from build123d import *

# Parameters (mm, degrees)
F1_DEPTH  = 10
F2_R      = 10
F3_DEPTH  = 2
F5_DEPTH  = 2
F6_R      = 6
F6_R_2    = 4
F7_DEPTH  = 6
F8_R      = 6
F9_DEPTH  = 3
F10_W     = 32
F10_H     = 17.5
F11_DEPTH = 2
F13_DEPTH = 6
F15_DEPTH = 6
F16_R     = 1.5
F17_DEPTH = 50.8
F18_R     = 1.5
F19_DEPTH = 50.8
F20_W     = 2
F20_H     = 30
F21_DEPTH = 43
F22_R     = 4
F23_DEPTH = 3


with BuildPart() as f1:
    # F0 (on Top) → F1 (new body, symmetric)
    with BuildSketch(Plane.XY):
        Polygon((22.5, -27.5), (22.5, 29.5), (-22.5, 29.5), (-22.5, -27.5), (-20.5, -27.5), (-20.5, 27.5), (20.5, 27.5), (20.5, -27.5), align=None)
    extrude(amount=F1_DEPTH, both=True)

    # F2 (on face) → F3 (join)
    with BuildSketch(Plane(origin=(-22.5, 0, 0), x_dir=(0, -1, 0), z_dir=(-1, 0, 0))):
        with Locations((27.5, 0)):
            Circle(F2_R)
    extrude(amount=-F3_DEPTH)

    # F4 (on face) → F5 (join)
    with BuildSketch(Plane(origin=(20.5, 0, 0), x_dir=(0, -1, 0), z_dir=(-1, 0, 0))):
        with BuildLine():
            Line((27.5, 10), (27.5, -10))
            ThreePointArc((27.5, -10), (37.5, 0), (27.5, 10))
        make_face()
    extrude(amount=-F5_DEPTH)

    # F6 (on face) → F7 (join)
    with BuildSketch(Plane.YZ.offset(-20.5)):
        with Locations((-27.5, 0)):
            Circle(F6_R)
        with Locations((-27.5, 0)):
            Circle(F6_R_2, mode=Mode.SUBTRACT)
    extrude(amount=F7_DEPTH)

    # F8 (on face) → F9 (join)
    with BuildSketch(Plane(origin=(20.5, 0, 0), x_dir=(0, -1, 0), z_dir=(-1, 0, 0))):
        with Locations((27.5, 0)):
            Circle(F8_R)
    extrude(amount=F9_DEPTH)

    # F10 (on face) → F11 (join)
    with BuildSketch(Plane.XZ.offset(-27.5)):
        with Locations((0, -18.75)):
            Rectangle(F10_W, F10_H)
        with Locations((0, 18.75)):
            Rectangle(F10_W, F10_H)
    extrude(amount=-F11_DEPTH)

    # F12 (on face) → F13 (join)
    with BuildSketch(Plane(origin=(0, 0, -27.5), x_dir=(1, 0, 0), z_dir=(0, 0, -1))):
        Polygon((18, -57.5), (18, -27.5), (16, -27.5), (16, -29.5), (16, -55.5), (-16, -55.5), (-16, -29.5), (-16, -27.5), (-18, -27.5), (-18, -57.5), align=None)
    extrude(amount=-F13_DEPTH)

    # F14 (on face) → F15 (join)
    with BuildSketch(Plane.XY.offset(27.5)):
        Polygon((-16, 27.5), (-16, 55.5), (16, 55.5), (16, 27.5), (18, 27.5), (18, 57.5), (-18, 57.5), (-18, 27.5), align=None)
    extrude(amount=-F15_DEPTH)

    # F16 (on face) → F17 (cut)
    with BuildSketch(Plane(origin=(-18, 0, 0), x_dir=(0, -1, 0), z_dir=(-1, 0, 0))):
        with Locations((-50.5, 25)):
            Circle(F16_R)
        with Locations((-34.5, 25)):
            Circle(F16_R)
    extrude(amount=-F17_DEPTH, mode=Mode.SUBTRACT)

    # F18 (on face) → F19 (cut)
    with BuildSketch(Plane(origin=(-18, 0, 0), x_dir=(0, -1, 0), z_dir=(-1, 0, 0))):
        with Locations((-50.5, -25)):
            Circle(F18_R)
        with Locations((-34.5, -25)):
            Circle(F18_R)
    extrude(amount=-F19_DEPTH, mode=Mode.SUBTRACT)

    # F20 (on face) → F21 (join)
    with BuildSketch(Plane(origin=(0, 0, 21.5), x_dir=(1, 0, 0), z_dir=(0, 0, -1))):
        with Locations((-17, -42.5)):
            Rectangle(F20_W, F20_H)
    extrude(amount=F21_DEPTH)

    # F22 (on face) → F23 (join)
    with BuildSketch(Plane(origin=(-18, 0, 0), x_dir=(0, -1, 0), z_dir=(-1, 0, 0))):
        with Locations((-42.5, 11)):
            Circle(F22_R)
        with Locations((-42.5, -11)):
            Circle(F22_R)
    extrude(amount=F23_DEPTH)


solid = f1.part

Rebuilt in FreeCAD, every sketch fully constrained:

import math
import FreeCAD as App
import Part
import Sketcher
from FreeCAD import Vector
Q = App.Units.Quantity

doc = App.newDocument("Part")
params = doc.addObject("Spreadsheet::Sheet", "Params")
for row, (alias, value) in enumerate([
    ("sketch1_width", "45 mm"),
    ("sketch1_width2", "2 mm"),
    ("sketch1_height", "57 mm"),
    ("sketch1_height2", "55 mm"),
    ("pad1_length", "20 mm"),
    ("sketch2_diameter", "20 mm"),
    ("pad2_length", "2 mm"),
    ("sketch3_radius", "10 mm"),
    ("pad3_length", "2 mm"),
    ("sketch4_diameter", "12 mm"),
    ("sketch4_diameter2", "8 mm"),
    ("pad4_length", "6 mm"),
    ("sketch5_diameter", "12 mm"),
    ("pad5_length", "3 mm"),
    ("sketch6_width", "32 mm"),
    ("sketch6_height", "17.5 mm"),
    ("pad6_length", "2 mm"),
    ("sketch7_width", "2 mm"),
    ("sketch7_width2", "32 mm"),
    ("sketch7_height", "30 mm"),
    ("sketch7_height2", "28 mm"),
    ("pad7_length", "6 mm"),
    ("sketch8_width", "32 mm"),
    ("sketch8_width2", "2 mm"),
    ("sketch8_height", "28 mm"),
    ("sketch8_height2", "30 mm"),
    ("pad8_length", "6 mm"),
    ("sketch9_diameter", "3 mm"),
    ("pocket1_length", "50.8 mm"),
    ("sketch10_diameter", "3 mm"),
    ("pocket2_length", "50.8 mm"),
    ("sketch11_width", "2 mm"),
    ("sketch11_height", "30 mm"),
    ("pad9_length", "43 mm"),
    ("sketch12_diameter", "8 mm"),
    ("pad10_length", "3 mm"),
], start=1):
    params.set(f"A{row}", alias)
    params.set(f"B{row}", "=" + value)
    params.setAlias(f"B{row}", alias)

body = doc.addObject("PartDesign::Body", "Body")

# Sketch on XY plane
sketch1 = body.newObject("Sketcher::SketchObject", "Sketch")
sketch1.AttachmentSupport = (doc.getObject("XY_Plane"), [""])
sketch1.MapMode = "FlatFace"
sketch1.addGeometry(Part.LineSegment(Vector(22.5, -27.5, 0), Vector(22.5, 29.5, 0)), False)
sketch1.addGeometry(Part.LineSegment(Vector(22.5, 29.5, 0), Vector(-22.5, 29.5, 0)), False)
sketch1.addGeometry(Part.LineSegment(Vector(-22.5, 29.5, 0), Vector(-22.5, -27.5, 0)), False)
sketch1.addGeometry(Part.LineSegment(Vector(-22.5, -27.5, 0), Vector(-20.5, -27.5, 0)), False)
sketch1.addGeometry(Part.LineSegment(Vector(-20.5, -27.5, 0), Vector(-20.5, 27.5, 0)), False)
sketch1.addGeometry(Part.LineSegment(Vector(-20.5, 27.5, 0), Vector(20.5, 27.5, 0)), False)
sketch1.addGeometry(Part.LineSegment(Vector(20.5, 27.5, 0), Vector(20.5, -27.5, 0)), False)
sketch1.addGeometry(Part.LineSegment(Vector(20.5, -27.5, 0), Vector(22.5, -27.5, 0)), False)
sketch1.addConstraint(Sketcher.Constraint("Coincident", 0, 2, 1, 1))
sketch1.addConstraint(Sketcher.Constraint("Coincident", 1, 2, 2, 1))
sketch1.addConstraint(Sketcher.Constraint("Coincident", 2, 2, 3, 1))
sketch1.addConstraint(Sketcher.Constraint("Coincident", 3, 2, 4, 1))
sketch1.addConstraint(Sketcher.Constraint("Coincident", 4, 2, 5, 1))
sketch1.addConstraint(Sketcher.Constraint("Coincident", 5, 2, 6, 1))
sketch1.addConstraint(Sketcher.Constraint("Coincident", 6, 2, 7, 1))
sketch1.addConstraint(Sketcher.Constraint("Coincident", 7, 2, 0, 1))
sketch1.addConstraint(Sketcher.Constraint("Vertical", 0))
sketch1.addConstraint(Sketcher.Constraint("Horizontal", 1))
sketch1.addConstraint(Sketcher.Constraint("Vertical", 2))
sketch1.addConstraint(Sketcher.Constraint("Horizontal", 3))
sketch1.addConstraint(Sketcher.Constraint("Vertical", 4))
sketch1.addConstraint(Sketcher.Constraint("Horizontal", 5))
sketch1.addConstraint(Sketcher.Constraint("Vertical", 6))
sketch1.addConstraint(Sketcher.Constraint("Horizontal", 7))
sketch1.addConstraint(Sketcher.Constraint("Symmetric", 3, 2, 5, 2, -1, 1))
sketch1.addConstraint(Sketcher.Constraint("Symmetric", 2, 2, 7, 2, -2))
sketch1.addConstraint(Sketcher.Constraint("DistanceX", 1, 2, 1, 1, Q("45 mm")))
sketch1.addConstraint(Sketcher.Constraint("DistanceX", 3, 1, 3, 2, Q("2 mm")))
sketch1.addConstraint(Sketcher.Constraint("DistanceY", 0, 1, 0, 2, Q("57 mm")))
sketch1.addConstraint(Sketcher.Constraint("DistanceY", 4, 1, 4, 2, Q("55 mm")))
sketch1.setExpression("Constraints[18]", "Params.sketch1_width")
sketch1.setExpression("Constraints[19]", "Params.sketch1_width2")
sketch1.setExpression("Constraints[20]", "Params.sketch1_height")
sketch1.setExpression("Constraints[21]", "Params.sketch1_height2")
pad1 = body.newObject("PartDesign::Pad", "Pad")
pad1.Profile = sketch1
pad1.setExpression("Length", "Params.pad1_length")
pad1.Midplane = True

# Sketch on YZ plane
sketch2 = body.newObject("Sketcher::SketchObject", "Sketch001")
sketch2.AttachmentSupport = (doc.getObject("YZ_Plane"), [""])
sketch2.MapMode = "FlatFace"
sketch2.AttachmentOffset = App.Placement(Vector(0, 0, -22.5), App.Rotation())
sketch2.addGeometry(Part.Circle(Vector(-27.5, 0, 0), Vector(0, 0, 1), 10), False)
sketch2.addConstraint(Sketcher.Constraint("PointOnObject", 0, 3, -1))
sketch2.addConstraint(Sketcher.Constraint("Diameter", 0, Q("20 mm")))
sketch2.addConstraint(Sketcher.Constraint("DistanceX", 0, 3, -1, 1, Q("27.5 mm")))
sketch2.setExpression("Constraints[1]", "Params.sketch2_diameter")
pad2 = body.newObject("PartDesign::Pad", "Pad001")
pad2.Profile = sketch2
pad2.setExpression("Length", "Params.pad2_length")

# Sketch on YZ plane
sketch3 = body.newObject("Sketcher::SketchObject", "Sketch002")
sketch3.AttachmentSupport = (doc.getObject("YZ_Plane"), [""])
sketch3.MapMode = "FlatFace"
sketch3.AttachmentOffset = App.Placement(Vector(0, 0, 20.5), App.Rotation())
sketch3.addGeometry(Part.LineSegment(Vector(-27.5, 10, 0), Vector(-27.5, -10, 0)), False)
sketch3.addGeometry(Part.ArcOfCircle(Part.Circle(Vector(-27.5, 0, 0), Vector(0, 0, 1), 10), math.radians(90), math.radians(270)), False)
sketch3.addConstraint(Sketcher.Constraint("Coincident", 0, 1, 1, 1))
sketch3.addConstraint(Sketcher.Constraint("Coincident", 1, 2, 0, 2))
sketch3.addConstraint(Sketcher.Constraint("Vertical", 0))
sketch3.addConstraint(Sketcher.Constraint("PointOnObject", 1, 3, -1))
sketch3.addConstraint(Sketcher.Constraint("Vertical", 1, 3, 0, 1))
sketch3.addConstraint(Sketcher.Constraint("Radius", 1, Q("10 mm")))
sketch3.addConstraint(Sketcher.Constraint("DistanceX", 1, 3, -1, 1, Q("27.5 mm")))
sketch3.setExpression("Constraints[5]", "Params.sketch3_radius")
pad3 = body.newObject("PartDesign::Pad", "Pad002")
pad3.Profile = sketch3
pad3.setExpression("Length", "Params.pad3_length")

# Sketch on YZ plane
sketch4 = body.newObject("Sketcher::SketchObject", "Sketch003")
sketch4.AttachmentSupport = (doc.getObject("YZ_Plane"), [""])
sketch4.MapMode = "FlatFace"
sketch4.AttachmentOffset = App.Placement(Vector(0, 0, -20.5), App.Rotation())
sketch4.addGeometry(Part.Circle(Vector(-27.5, 0, 0), Vector(0, 0, 1), 6), False)
sketch4.addGeometry(Part.Circle(Vector(-27.5, 0, 0), Vector(0, 0, 1), 4), False)
sketch4.addConstraint(Sketcher.Constraint("Coincident", 1, 3, 0, 3))
sketch4.addConstraint(Sketcher.Constraint("PointOnObject", 0, 3, -1))
sketch4.addConstraint(Sketcher.Constraint("Diameter", 0, Q("12 mm")))
sketch4.addConstraint(Sketcher.Constraint("Diameter", 1, Q("8 mm")))
sketch4.addConstraint(Sketcher.Constraint("DistanceX", 0, 3, -1, 1, Q("27.5 mm")))
sketch4.setExpression("Constraints[2]", "Params.sketch4_diameter")
sketch4.setExpression("Constraints[3]", "Params.sketch4_diameter2")
pad4 = body.newObject("PartDesign::Pad", "Pad003")
pad4.Profile = sketch4
pad4.setExpression("Length", "Params.pad4_length")

# Sketch on YZ plane
sketch5 = body.newObject("Sketcher::SketchObject", "Sketch004")
sketch5.AttachmentSupport = (doc.getObject("YZ_Plane"), [""])
sketch5.MapMode = "FlatFace"
sketch5.AttachmentOffset = App.Placement(Vector(0, 0, 20.5), App.Rotation())
sketch5.addGeometry(Part.Circle(Vector(-27.5, 0, 0), Vector(0, 0, 1), 6), False)
sketch5.addConstraint(Sketcher.Constraint("PointOnObject", 0, 3, -1))
sketch5.addConstraint(Sketcher.Constraint("Diameter", 0, Q("12 mm")))
sketch5.addConstraint(Sketcher.Constraint("DistanceX", 0, 3, -1, 1, Q("27.5 mm")))
sketch5.setExpression("Constraints[1]", "Params.sketch5_diameter")
pad5 = body.newObject("PartDesign::Pad", "Pad004")
pad5.Profile = sketch5
pad5.setExpression("Length", "Params.pad5_length")
pad5.Reversed = True

# Sketch on XZ plane
sketch6 = body.newObject("Sketcher::SketchObject", "Sketch005")
sketch6.AttachmentSupport = (doc.getObject("XZ_Plane"), [""])
sketch6.MapMode = "FlatFace"
sketch6.AttachmentOffset = App.Placement(Vector(0, 0, -27.5), App.Rotation())
sketch6.addGeometry(Part.LineSegment(Vector(-16, -10, 0), Vector(-16, -27.5, 0)), False)
sketch6.addGeometry(Part.LineSegment(Vector(-16, -27.5, 0), Vector(16, -27.5, 0)), False)
sketch6.addGeometry(Part.LineSegment(Vector(16, -27.5, 0), Vector(16, -10, 0)), False)
sketch6.addGeometry(Part.LineSegment(Vector(16, -10, 0), Vector(-16, -10, 0)), False)
sketch6.addGeometry(Part.LineSegment(Vector(-16, 27.5, 0), Vector(-16, 10, 0)), False)
sketch6.addGeometry(Part.LineSegment(Vector(-16, 10, 0), Vector(16, 10, 0)), False)
sketch6.addGeometry(Part.LineSegment(Vector(16, 10, 0), Vector(16, 27.5, 0)), False)
sketch6.addGeometry(Part.LineSegment(Vector(16, 27.5, 0), Vector(-16, 27.5, 0)), False)
sketch6.addConstraint(Sketcher.Constraint("Coincident", 0, 2, 1, 1))
sketch6.addConstraint(Sketcher.Constraint("Coincident", 1, 2, 2, 1))
sketch6.addConstraint(Sketcher.Constraint("Coincident", 2, 2, 3, 1))
sketch6.addConstraint(Sketcher.Constraint("Coincident", 3, 2, 0, 1))
sketch6.addConstraint(Sketcher.Constraint("Coincident", 4, 2, 5, 1))
sketch6.addConstraint(Sketcher.Constraint("Coincident", 5, 2, 6, 1))
sketch6.addConstraint(Sketcher.Constraint("Coincident", 6, 2, 7, 1))
sketch6.addConstraint(Sketcher.Constraint("Coincident", 7, 2, 4, 1))
sketch6.addConstraint(Sketcher.Constraint("Vertical", 0))
sketch6.addConstraint(Sketcher.Constraint("Horizontal", 1))
sketch6.addConstraint(Sketcher.Constraint("Vertical", 2))
sketch6.addConstraint(Sketcher.Constraint("Horizontal", 3))
sketch6.addConstraint(Sketcher.Constraint("Vertical", 4))
sketch6.addConstraint(Sketcher.Constraint("Horizontal", 5))
sketch6.addConstraint(Sketcher.Constraint("Vertical", 6))
sketch6.addConstraint(Sketcher.Constraint("Horizontal", 7))
sketch6.addConstraint(Sketcher.Constraint("Symmetric", 2, 2, 4, 2, -1, 1))
sketch6.addConstraint(Sketcher.Constraint("Symmetric", 0, 2, 6, 2, -1, 1))
sketch6.addConstraint(Sketcher.Constraint("Vertical", 3, 2, 4, 2))
sketch6.addConstraint(Sketcher.Constraint("DistanceX", 1, 1, 1, 2, Q("32 mm")))
sketch6.addConstraint(Sketcher.Constraint("DistanceY", 0, 2, 0, 1, Q("17.5 mm")))
sketch6.addConstraint(Sketcher.Constraint("DistanceY", 2, 2, -1, 1, Q("10 mm")))
sketch6.setExpression("Constraints[19]", "Params.sketch6_width")
sketch6.setExpression("Constraints[20]", "Params.sketch6_height")
pad6 = body.newObject("PartDesign::Pad", "Pad005")
pad6.Profile = sketch6
pad6.setExpression("Length", "Params.pad6_length")
pad6.Reversed = True

# Sketch on XY plane
sketch7 = body.newObject("Sketcher::SketchObject", "Sketch006")
sketch7.AttachmentSupport = (doc.getObject("XY_Plane"), [""])
sketch7.MapMode = "FlatFace"
sketch7.AttachmentOffset = App.Placement(Vector(0, 0, -27.5), App.Rotation())
sketch7.addGeometry(Part.LineSegment(Vector(18, 57.5, 0), Vector(18, 27.5, 0)), False)
sketch7.addGeometry(Part.LineSegment(Vector(18, 27.5, 0), Vector(16, 27.5, 0)), False)
sketch7.addGeometry(Part.LineSegment(Vector(16, 27.5, 0), Vector(16, 55.5, 0)), False)
sketch7.addGeometry(Part.LineSegment(Vector(16, 55.5, 0), Vector(-16, 55.5, 0)), False)
sketch7.addGeometry(Part.LineSegment(Vector(-16, 55.5, 0), Vector(-16, 27.5, 0)), False)
sketch7.addGeometry(Part.LineSegment(Vector(-16, 27.5, 0), Vector(-18, 27.5, 0)), False)
sketch7.addGeometry(Part.LineSegment(Vector(-18, 27.5, 0), Vector(-18, 57.5, 0)), False)
sketch7.addGeometry(Part.LineSegment(Vector(-18, 57.5, 0), Vector(18, 57.5, 0)), False)
sketch7.addConstraint(Sketcher.Constraint("Coincident", 0, 2, 1, 1))
sketch7.addConstraint(Sketcher.Constraint("Coincident", 1, 2, 2, 1))
sketch7.addConstraint(Sketcher.Constraint("Coincident", 2, 2, 3, 1))
sketch7.addConstraint(Sketcher.Constraint("Coincident", 3, 2, 4, 1))
sketch7.addConstraint(Sketcher.Constraint("Coincident", 4, 2, 5, 1))
sketch7.addConstraint(Sketcher.Constraint("Coincident", 5, 2, 6, 1))
sketch7.addConstraint(Sketcher.Constraint("Coincident", 6, 2, 7, 1))
sketch7.addConstraint(Sketcher.Constraint("Coincident", 7, 2, 0, 1))
sketch7.addConstraint(Sketcher.Constraint("Vertical", 0))
sketch7.addConstraint(Sketcher.Constraint("Horizontal", 1))
sketch7.addConstraint(Sketcher.Constraint("Vertical", 2))
sketch7.addConstraint(Sketcher.Constraint("Horizontal", 3))
sketch7.addConstraint(Sketcher.Constraint("Vertical", 4))
sketch7.addConstraint(Sketcher.Constraint("Horizontal", 5))
sketch7.addConstraint(Sketcher.Constraint("Vertical", 6))
sketch7.addConstraint(Sketcher.Constraint("Horizontal", 7))
sketch7.addConstraint(Sketcher.Constraint("Symmetric", 1, 2, 4, 2, -2))
sketch7.addConstraint(Sketcher.Constraint("Equal", 1, 5))
sketch7.addConstraint(Sketcher.Constraint("DistanceX", 1, 2, 1, 1, Q("2 mm")))
sketch7.addConstraint(Sketcher.Constraint("DistanceX", 3, 2, 3, 1, Q("32 mm")))
sketch7.addConstraint(Sketcher.Constraint("DistanceY", 0, 2, 0, 1, Q("30 mm")))
sketch7.addConstraint(Sketcher.Constraint("DistanceY", 2, 1, 2, 2, Q("28 mm")))
sketch7.addConstraint(Sketcher.Constraint("DistanceY", -1, 1, 0, 2, Q("27.5 mm")))
sketch7.setExpression("Constraints[18]", "Params.sketch7_width")
sketch7.setExpression("Constraints[19]", "Params.sketch7_width2")
sketch7.setExpression("Constraints[20]", "Params.sketch7_height")
sketch7.setExpression("Constraints[21]", "Params.sketch7_height2")
pad7 = body.newObject("PartDesign::Pad", "Pad006")
pad7.Profile = sketch7
pad7.setExpression("Length", "Params.pad7_length")

# Sketch on XY plane
sketch8 = body.newObject("Sketcher::SketchObject", "Sketch007")
sketch8.AttachmentSupport = (doc.getObject("XY_Plane"), [""])
sketch8.MapMode = "FlatFace"
sketch8.AttachmentOffset = App.Placement(Vector(0, 0, 27.5), App.Rotation())
sketch8.addGeometry(Part.LineSegment(Vector(-16, 27.5, 0), Vector(-16, 55.5, 0)), False)
sketch8.addGeometry(Part.LineSegment(Vector(-16, 55.5, 0), Vector(16, 55.5, 0)), False)
sketch8.addGeometry(Part.LineSegment(Vector(16, 55.5, 0), Vector(16, 27.5, 0)), False)
sketch8.addGeometry(Part.LineSegment(Vector(16, 27.5, 0), Vector(18, 27.5, 0)), False)
sketch8.addGeometry(Part.LineSegment(Vector(18, 27.5, 0), Vector(18, 57.5, 0)), False)
sketch8.addGeometry(Part.LineSegment(Vector(18, 57.5, 0), Vector(-18, 57.5, 0)), False)
sketch8.addGeometry(Part.LineSegment(Vector(-18, 57.5, 0), Vector(-18, 27.5, 0)), False)
sketch8.addGeometry(Part.LineSegment(Vector(-18, 27.5, 0), Vector(-16, 27.5, 0)), False)
sketch8.addConstraint(Sketcher.Constraint("Coincident", 0, 2, 1, 1))
sketch8.addConstraint(Sketcher.Constraint("Coincident", 1, 2, 2, 1))
sketch8.addConstraint(Sketcher.Constraint("Coincident", 2, 2, 3, 1))
sketch8.addConstraint(Sketcher.Constraint("Coincident", 3, 2, 4, 1))
sketch8.addConstraint(Sketcher.Constraint("Coincident", 4, 2, 5, 1))
sketch8.addConstraint(Sketcher.Constraint("Coincident", 5, 2, 6, 1))
sketch8.addConstraint(Sketcher.Constraint("Coincident", 6, 2, 7, 1))
sketch8.addConstraint(Sketcher.Constraint("Coincident", 7, 2, 0, 1))
sketch8.addConstraint(Sketcher.Constraint("Vertical", 0))
sketch8.addConstraint(Sketcher.Constraint("Horizontal", 1))
sketch8.addConstraint(Sketcher.Constraint("Vertical", 2))
sketch8.addConstraint(Sketcher.Constraint("Horizontal", 3))
sketch8.addConstraint(Sketcher.Constraint("Vertical", 4))
sketch8.addConstraint(Sketcher.Constraint("Horizontal", 5))
sketch8.addConstraint(Sketcher.Constraint("Vertical", 6))
sketch8.addConstraint(Sketcher.Constraint("Horizontal", 7))
sketch8.addConstraint(Sketcher.Constraint("Symmetric", 3, 2, 6, 2, -2))
sketch8.addConstraint(Sketcher.Constraint("Equal", 3, 7))
sketch8.addConstraint(Sketcher.Constraint("DistanceX", 1, 1, 1, 2, Q("32 mm")))
sketch8.addConstraint(Sketcher.Constraint("DistanceX", 3, 1, 3, 2, Q("2 mm")))
sketch8.addConstraint(Sketcher.Constraint("DistanceY", 0, 1, 0, 2, Q("28 mm")))
sketch8.addConstraint(Sketcher.Constraint("DistanceY", 4, 1, 4, 2, Q("30 mm")))
sketch8.addConstraint(Sketcher.Constraint("DistanceY", -1, 1, 0, 2, Q("55.5 mm")))
sketch8.setExpression("Constraints[18]", "Params.sketch8_width")
sketch8.setExpression("Constraints[19]", "Params.sketch8_width2")
sketch8.setExpression("Constraints[20]", "Params.sketch8_height")
sketch8.setExpression("Constraints[21]", "Params.sketch8_height2")
pad8 = body.newObject("PartDesign::Pad", "Pad007")
pad8.Profile = sketch8
pad8.setExpression("Length", "Params.pad8_length")
pad8.Reversed = True

# Sketch on YZ plane
sketch9 = body.newObject("Sketcher::SketchObject", "Sketch008")
sketch9.AttachmentSupport = (doc.getObject("YZ_Plane"), [""])
sketch9.MapMode = "FlatFace"
sketch9.AttachmentOffset = App.Placement(Vector(0, 0, -18), App.Rotation())
sketch9.addGeometry(Part.Circle(Vector(50.5, 25, 0), Vector(0, 0, 1), 1.5), False)
sketch9.addGeometry(Part.Circle(Vector(34.5, 25, 0), Vector(0, 0, 1), 1.5), False)
sketch9.addConstraint(Sketcher.Constraint("Equal", 0, 1))
sketch9.addConstraint(Sketcher.Constraint("Horizontal", 0, 3, 1, 3))
sketch9.addConstraint(Sketcher.Constraint("Diameter", 0, Q("3 mm")))
sketch9.addConstraint(Sketcher.Constraint("DistanceY", -1, 1, 0, 3, Q("25 mm")))
sketch9.addConstraint(Sketcher.Constraint("DistanceX", 1, 3, 0, 3, Q("16 mm")))
sketch9.addConstraint(Sketcher.Constraint("DistanceX", -1, 1, 0, 3, Q("50.5 mm")))
sketch9.setExpression("Constraints[2]", "Params.sketch9_diameter")
pocket1 = body.newObject("PartDesign::Pocket", "Pocket")
pocket1.Profile = sketch9
pocket1.setExpression("Length", "Params.pocket1_length")
pocket1.Reversed = True

# Sketch on YZ plane
sketch10 = body.newObject("Sketcher::SketchObject", "Sketch009")
sketch10.AttachmentSupport = (doc.getObject("YZ_Plane"), [""])
sketch10.MapMode = "FlatFace"
sketch10.AttachmentOffset = App.Placement(Vector(0, 0, -18), App.Rotation())
sketch10.addGeometry(Part.Circle(Vector(50.5, -25, 0), Vector(0, 0, 1), 1.5), False)
sketch10.addGeometry(Part.Circle(Vector(34.5, -25, 0), Vector(0, 0, 1), 1.5), False)
sketch10.addConstraint(Sketcher.Constraint("Equal", 0, 1))
sketch10.addConstraint(Sketcher.Constraint("Horizontal", 0, 3, 1, 3))
sketch10.addConstraint(Sketcher.Constraint("Diameter", 0, Q("3 mm")))
sketch10.addConstraint(Sketcher.Constraint("DistanceY", 0, 3, -1, 1, Q("25 mm")))
sketch10.addConstraint(Sketcher.Constraint("DistanceX", 1, 3, 0, 3, Q("16 mm")))
sketch10.addConstraint(Sketcher.Constraint("DistanceX", -1, 1, 0, 3, Q("50.5 mm")))
sketch10.setExpression("Constraints[2]", "Params.sketch10_diameter")
pocket2 = body.newObject("PartDesign::Pocket", "Pocket001")
pocket2.Profile = sketch10
pocket2.setExpression("Length", "Params.pocket2_length")
pocket2.Reversed = True

# Sketch on XY plane
sketch11 = body.newObject("Sketcher::SketchObject", "Sketch010")
sketch11.AttachmentSupport = (doc.getObject("XY_Plane"), [""])
sketch11.MapMode = "FlatFace"
sketch11.AttachmentOffset = App.Placement(Vector(0, 0, 21.5), App.Rotation())
sketch11.addGeometry(Part.LineSegment(Vector(-18, 27.5, 0), Vector(-18, 57.5, 0)), False)
sketch11.addGeometry(Part.LineSegment(Vector(-18, 57.5, 0), Vector(-16, 57.5, 0)), False)
sketch11.addGeometry(Part.LineSegment(Vector(-16, 57.5, 0), Vector(-16, 27.5, 0)), False)
sketch11.addGeometry(Part.LineSegment(Vector(-16, 27.5, 0), Vector(-18, 27.5, 0)), False)
sketch11.addConstraint(Sketcher.Constraint("Coincident", 0, 2, 1, 1))
sketch11.addConstraint(Sketcher.Constraint("Coincident", 1, 2, 2, 1))
sketch11.addConstraint(Sketcher.Constraint("Coincident", 2, 2, 3, 1))
sketch11.addConstraint(Sketcher.Constraint("Coincident", 3, 2, 0, 1))
sketch11.addConstraint(Sketcher.Constraint("Vertical", 0))
sketch11.addConstraint(Sketcher.Constraint("Horizontal", 1))
sketch11.addConstraint(Sketcher.Constraint("Vertical", 2))
sketch11.addConstraint(Sketcher.Constraint("Horizontal", 3))
sketch11.addConstraint(Sketcher.Constraint("DistanceX", 1, 1, 1, 2, Q("2 mm")))
sketch11.addConstraint(Sketcher.Constraint("DistanceY", 0, 1, 0, 2, Q("30 mm")))
sketch11.addConstraint(Sketcher.Constraint("DistanceX", 0, 2, -1, 1, Q("18 mm")))
sketch11.addConstraint(Sketcher.Constraint("DistanceY", -1, 1, 0, 2, Q("57.5 mm")))
sketch11.setExpression("Constraints[8]", "Params.sketch11_width")
sketch11.setExpression("Constraints[9]", "Params.sketch11_height")
pad9 = body.newObject("PartDesign::Pad", "Pad008")
pad9.Profile = sketch11
pad9.setExpression("Length", "Params.pad9_length")
pad9.Reversed = True

# Sketch on YZ plane
sketch12 = body.newObject("Sketcher::SketchObject", "Sketch011")
sketch12.AttachmentSupport = (doc.getObject("YZ_Plane"), [""])
sketch12.MapMode = "FlatFace"
sketch12.AttachmentOffset = App.Placement(Vector(0, 0, -18), App.Rotation())
sketch12.addGeometry(Part.Circle(Vector(42.5, 11, 0), Vector(0, 0, 1), 4), False)
sketch12.addGeometry(Part.Circle(Vector(42.5, -11, 0), Vector(0, 0, 1), 4), False)
sketch12.addConstraint(Sketcher.Constraint("Equal", 0, 1))
sketch12.addConstraint(Sketcher.Constraint("Symmetric", 0, 3, 1, 3, -1))
sketch12.addConstraint(Sketcher.Constraint("Diameter", 0, Q("8 mm")))
sketch12.addConstraint(Sketcher.Constraint("DistanceY", -1, 1, 0, 3, Q("11 mm")))
sketch12.addConstraint(Sketcher.Constraint("DistanceX", -1, 1, 0, 3, Q("42.5 mm")))
sketch12.setExpression("Constraints[2]", "Params.sketch12_diameter")
pad10 = body.newObject("PartDesign::Pad", "Pad009")
pad10.Profile = sketch12
pad10.setExpression("Length", "Params.pad10_length")
pad10.Reversed = True

doc.recompute()
